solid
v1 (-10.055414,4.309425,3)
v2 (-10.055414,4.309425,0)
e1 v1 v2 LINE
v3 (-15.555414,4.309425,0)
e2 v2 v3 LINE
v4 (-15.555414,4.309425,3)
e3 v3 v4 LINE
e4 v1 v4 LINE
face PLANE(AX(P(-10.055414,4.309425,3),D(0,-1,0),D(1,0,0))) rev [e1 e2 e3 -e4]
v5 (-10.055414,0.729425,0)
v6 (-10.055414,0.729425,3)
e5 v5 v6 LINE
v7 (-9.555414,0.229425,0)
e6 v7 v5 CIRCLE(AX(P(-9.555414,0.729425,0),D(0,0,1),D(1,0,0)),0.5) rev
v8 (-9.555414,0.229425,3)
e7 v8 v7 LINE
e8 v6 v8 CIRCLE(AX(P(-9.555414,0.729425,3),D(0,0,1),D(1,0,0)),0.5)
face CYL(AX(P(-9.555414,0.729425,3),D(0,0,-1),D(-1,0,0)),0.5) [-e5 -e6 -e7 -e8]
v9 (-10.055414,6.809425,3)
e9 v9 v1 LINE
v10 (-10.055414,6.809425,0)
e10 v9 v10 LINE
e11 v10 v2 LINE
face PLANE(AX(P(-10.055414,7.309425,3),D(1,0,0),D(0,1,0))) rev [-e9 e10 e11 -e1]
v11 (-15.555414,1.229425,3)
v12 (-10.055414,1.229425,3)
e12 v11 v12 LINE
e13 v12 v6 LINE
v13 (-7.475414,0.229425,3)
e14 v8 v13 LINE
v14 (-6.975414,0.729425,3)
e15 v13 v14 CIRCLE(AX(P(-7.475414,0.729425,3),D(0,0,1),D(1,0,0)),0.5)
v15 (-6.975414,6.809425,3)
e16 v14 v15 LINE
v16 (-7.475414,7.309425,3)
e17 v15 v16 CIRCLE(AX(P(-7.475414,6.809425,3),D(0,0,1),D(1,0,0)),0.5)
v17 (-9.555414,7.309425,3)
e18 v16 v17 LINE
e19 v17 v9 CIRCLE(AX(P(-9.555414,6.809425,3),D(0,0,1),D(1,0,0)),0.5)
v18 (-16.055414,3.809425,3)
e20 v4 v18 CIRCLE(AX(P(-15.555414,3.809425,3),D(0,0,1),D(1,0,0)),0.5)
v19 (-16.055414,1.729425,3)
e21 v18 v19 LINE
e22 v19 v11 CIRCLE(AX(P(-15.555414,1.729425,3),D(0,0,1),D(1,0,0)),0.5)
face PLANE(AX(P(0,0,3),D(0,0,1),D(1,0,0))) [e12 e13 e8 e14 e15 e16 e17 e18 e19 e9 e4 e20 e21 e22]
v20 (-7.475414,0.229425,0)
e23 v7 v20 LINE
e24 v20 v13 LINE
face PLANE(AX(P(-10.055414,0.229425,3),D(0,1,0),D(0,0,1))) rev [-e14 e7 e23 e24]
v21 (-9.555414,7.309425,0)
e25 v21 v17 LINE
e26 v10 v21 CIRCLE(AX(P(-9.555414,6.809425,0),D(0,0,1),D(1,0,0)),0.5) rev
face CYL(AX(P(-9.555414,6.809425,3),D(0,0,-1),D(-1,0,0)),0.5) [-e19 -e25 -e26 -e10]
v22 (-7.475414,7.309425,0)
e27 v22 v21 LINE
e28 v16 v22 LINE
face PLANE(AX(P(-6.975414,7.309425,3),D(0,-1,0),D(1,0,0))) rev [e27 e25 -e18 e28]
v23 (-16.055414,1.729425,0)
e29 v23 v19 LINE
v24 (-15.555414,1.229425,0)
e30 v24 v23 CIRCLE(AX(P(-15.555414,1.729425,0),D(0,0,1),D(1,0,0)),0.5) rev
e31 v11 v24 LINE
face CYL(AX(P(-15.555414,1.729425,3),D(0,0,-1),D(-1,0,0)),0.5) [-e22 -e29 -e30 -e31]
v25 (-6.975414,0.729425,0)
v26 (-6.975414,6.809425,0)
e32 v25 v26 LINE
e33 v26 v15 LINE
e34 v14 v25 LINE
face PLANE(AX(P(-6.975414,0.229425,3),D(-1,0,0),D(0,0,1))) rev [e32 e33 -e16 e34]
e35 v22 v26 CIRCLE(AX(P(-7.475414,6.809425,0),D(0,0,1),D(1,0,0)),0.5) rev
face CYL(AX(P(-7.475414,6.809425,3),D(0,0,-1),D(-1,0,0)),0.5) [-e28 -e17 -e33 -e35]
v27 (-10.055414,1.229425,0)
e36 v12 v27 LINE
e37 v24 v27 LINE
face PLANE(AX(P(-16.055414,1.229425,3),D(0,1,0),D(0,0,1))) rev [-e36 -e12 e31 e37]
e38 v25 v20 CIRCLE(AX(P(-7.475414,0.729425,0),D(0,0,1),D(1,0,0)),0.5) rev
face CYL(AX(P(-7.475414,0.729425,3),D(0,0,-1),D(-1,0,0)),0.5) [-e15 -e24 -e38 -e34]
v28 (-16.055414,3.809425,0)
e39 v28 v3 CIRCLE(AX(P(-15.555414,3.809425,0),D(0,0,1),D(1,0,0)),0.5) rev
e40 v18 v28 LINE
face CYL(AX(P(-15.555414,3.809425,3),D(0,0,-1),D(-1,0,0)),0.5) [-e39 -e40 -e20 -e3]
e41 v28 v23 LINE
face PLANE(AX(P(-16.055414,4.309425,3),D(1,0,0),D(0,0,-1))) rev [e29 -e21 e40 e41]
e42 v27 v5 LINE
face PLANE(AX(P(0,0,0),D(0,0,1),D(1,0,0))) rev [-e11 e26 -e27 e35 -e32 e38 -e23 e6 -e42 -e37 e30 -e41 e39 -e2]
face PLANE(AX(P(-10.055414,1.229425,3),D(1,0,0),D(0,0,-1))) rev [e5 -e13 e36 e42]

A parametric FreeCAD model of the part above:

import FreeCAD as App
import Part
import Sketcher
from FreeCAD import Vector


def edges_at(feature, points):
    """Names of the edges that pass closest to the given points."""
    edges = feature.Shape.Edges
    near = lambda p: min(range(len(edges)), key=lambda i: edges[i].distToShape(Part.Vertex(*p))[0])
    return sorted({f"Edge{near(p) + 1}" for p in points})

doc = App.newDocument("Part")
body = doc.addObject("PartDesign::Body", "Body")

# Sketch on XY plane
sketch1 = body.newObject("Sketcher::SketchObject", "Sketch")
sketch1.AttachmentSupport = (doc.getObject("XY_Plane"), [""])
sketch1.MapMode = "FlatFace"
sketch1.addGeometry(Part.LineSegment(Vector(-16.1, 1.2, 0), Vector(-10.1, 1.2, 0)), False)
sketch1.addGeometry(Part.LineSegment(Vector(-10.1, 1.2, 0), Vector(-10.1, 0.2, 0)), False)
sketch1.addGeometry(Part.LineSegment(Vector(-10.1, 0.2, 0), Vector(-7, 0.2, 0)), False)
sketch1.addGeometry(Part.LineSegment(Vector(-7, 0.2, 0), Vector(-7, 7.3, 0)), False)
sketch1.addGeometry(Part.LineSegment(Vector(-7, 7.3, 0), Vector(-10.1, 7.3, 0)), False)
sketch1.addGeometry(Part.LineSegment(Vector(-10.1, 7.3, 0), Vector(-10.1, 4.3, 0)), False)
sketch1.addGeometry(Part.LineSegment(Vector(-10.1, 4.3, 0), Vector(-16.1, 4.3, 0)), False)
sketch1.addGeometry(Part.LineSegment(Vector(-16.1, 4.3, 0), Vector(-16.1, 1.2, 0)), False)
sketch1.addConstraint(Sketcher.Constraint("Coincident", 0, 2, 1, 1))
sketch1.addConstraint(Sketcher.Constraint("Coincident", 1, 2, 2, 1))
sketch1.addConstraint(Sketcher.Constraint("Coincident", 2, 2, 3, 1))
sketch1.addConstraint(Sketcher.Constraint("Coincident", 3, 2, 4, 1))
sketch1.addConstraint(Sketcher.Constraint("Coincident", 4, 2, 5, 1))
sketch1.addConstraint(Sketcher.Constraint("Coincident", 5, 2, 6, 1))
sketch1.addConstraint(Sketcher.Constraint("Coincident", 6, 2, 7, 1))
sketch1.addConstraint(Sketcher.Constraint("Coincident", 7, 2, 0, 1))
sketch1.addConstraint(Sketcher.Constraint("Horizontal", 0))
sketch1.addConstraint(Sketcher.Constraint("Vertical", 1))
sketch1.addConstraint(Sketcher.Constraint("Horizontal", 2))
sketch1.addConstraint(Sketcher.Constraint("Vertical", 3))
sketch1.addConstraint(Sketcher.Constraint("Horizontal", 4))
sketch1.addConstraint(Sketcher.Constraint("Vertical", 5))
sketch1.addConstraint(Sketcher.Constraint("Horizontal", 6))
sketch1.addConstraint(Sketcher.Constraint("Vertical", 7))
sketch1.addConstraint(Sketcher.Constraint("Vertical", 1, 2, 4, 2))
sketch1.addConstraint(Sketcher.Constraint("Equal", 4, 7))
sketch1.addConstraint(Sketcher.Constraint("DistanceX", 0, 1, 0, 2, 6.0))
sketch1.addConstraint(Sketcher.Constraint("DistanceY", 1, 2, 1, 1, 1.0))
sketch1.addConstraint(Sketcher.Constraint("DistanceY", 5, 2, 5, 1, 3.0))
sketch1.addConstraint(Sketcher.Constraint("DistanceX", 2, 1, 2, 2, 3.08))
sketch1.addConstraint(Sketcher.Constraint("DistanceX", 0, 2, -1, 1, 10.055414))
sketch1.addConstraint(Sketcher.Constraint("DistanceY", -1, 1, 0, 2, 1.229425))
pad1 = body.newObject("PartDesign::Pad", "Pad")
pad1.Profile = sketch1
pad1.Length = 3
doc.recompute()

fillet = body.newObject("PartDesign::Fillet", "Fillet")
fillet.Base = (pad1, edges_at(pad1, [
    (-16.055, 4.309, 1.5),
    (-10.055, 7.309, 1.5),
    (-6.975, 7.309, 1.5),
    (-6.975, 0.229, 1.5),
    (-10.055, 0.229, 1.5),
    (-16.055, 1.229, 1.5),
]))
fillet.Radius = 0.5

doc.recompute()
